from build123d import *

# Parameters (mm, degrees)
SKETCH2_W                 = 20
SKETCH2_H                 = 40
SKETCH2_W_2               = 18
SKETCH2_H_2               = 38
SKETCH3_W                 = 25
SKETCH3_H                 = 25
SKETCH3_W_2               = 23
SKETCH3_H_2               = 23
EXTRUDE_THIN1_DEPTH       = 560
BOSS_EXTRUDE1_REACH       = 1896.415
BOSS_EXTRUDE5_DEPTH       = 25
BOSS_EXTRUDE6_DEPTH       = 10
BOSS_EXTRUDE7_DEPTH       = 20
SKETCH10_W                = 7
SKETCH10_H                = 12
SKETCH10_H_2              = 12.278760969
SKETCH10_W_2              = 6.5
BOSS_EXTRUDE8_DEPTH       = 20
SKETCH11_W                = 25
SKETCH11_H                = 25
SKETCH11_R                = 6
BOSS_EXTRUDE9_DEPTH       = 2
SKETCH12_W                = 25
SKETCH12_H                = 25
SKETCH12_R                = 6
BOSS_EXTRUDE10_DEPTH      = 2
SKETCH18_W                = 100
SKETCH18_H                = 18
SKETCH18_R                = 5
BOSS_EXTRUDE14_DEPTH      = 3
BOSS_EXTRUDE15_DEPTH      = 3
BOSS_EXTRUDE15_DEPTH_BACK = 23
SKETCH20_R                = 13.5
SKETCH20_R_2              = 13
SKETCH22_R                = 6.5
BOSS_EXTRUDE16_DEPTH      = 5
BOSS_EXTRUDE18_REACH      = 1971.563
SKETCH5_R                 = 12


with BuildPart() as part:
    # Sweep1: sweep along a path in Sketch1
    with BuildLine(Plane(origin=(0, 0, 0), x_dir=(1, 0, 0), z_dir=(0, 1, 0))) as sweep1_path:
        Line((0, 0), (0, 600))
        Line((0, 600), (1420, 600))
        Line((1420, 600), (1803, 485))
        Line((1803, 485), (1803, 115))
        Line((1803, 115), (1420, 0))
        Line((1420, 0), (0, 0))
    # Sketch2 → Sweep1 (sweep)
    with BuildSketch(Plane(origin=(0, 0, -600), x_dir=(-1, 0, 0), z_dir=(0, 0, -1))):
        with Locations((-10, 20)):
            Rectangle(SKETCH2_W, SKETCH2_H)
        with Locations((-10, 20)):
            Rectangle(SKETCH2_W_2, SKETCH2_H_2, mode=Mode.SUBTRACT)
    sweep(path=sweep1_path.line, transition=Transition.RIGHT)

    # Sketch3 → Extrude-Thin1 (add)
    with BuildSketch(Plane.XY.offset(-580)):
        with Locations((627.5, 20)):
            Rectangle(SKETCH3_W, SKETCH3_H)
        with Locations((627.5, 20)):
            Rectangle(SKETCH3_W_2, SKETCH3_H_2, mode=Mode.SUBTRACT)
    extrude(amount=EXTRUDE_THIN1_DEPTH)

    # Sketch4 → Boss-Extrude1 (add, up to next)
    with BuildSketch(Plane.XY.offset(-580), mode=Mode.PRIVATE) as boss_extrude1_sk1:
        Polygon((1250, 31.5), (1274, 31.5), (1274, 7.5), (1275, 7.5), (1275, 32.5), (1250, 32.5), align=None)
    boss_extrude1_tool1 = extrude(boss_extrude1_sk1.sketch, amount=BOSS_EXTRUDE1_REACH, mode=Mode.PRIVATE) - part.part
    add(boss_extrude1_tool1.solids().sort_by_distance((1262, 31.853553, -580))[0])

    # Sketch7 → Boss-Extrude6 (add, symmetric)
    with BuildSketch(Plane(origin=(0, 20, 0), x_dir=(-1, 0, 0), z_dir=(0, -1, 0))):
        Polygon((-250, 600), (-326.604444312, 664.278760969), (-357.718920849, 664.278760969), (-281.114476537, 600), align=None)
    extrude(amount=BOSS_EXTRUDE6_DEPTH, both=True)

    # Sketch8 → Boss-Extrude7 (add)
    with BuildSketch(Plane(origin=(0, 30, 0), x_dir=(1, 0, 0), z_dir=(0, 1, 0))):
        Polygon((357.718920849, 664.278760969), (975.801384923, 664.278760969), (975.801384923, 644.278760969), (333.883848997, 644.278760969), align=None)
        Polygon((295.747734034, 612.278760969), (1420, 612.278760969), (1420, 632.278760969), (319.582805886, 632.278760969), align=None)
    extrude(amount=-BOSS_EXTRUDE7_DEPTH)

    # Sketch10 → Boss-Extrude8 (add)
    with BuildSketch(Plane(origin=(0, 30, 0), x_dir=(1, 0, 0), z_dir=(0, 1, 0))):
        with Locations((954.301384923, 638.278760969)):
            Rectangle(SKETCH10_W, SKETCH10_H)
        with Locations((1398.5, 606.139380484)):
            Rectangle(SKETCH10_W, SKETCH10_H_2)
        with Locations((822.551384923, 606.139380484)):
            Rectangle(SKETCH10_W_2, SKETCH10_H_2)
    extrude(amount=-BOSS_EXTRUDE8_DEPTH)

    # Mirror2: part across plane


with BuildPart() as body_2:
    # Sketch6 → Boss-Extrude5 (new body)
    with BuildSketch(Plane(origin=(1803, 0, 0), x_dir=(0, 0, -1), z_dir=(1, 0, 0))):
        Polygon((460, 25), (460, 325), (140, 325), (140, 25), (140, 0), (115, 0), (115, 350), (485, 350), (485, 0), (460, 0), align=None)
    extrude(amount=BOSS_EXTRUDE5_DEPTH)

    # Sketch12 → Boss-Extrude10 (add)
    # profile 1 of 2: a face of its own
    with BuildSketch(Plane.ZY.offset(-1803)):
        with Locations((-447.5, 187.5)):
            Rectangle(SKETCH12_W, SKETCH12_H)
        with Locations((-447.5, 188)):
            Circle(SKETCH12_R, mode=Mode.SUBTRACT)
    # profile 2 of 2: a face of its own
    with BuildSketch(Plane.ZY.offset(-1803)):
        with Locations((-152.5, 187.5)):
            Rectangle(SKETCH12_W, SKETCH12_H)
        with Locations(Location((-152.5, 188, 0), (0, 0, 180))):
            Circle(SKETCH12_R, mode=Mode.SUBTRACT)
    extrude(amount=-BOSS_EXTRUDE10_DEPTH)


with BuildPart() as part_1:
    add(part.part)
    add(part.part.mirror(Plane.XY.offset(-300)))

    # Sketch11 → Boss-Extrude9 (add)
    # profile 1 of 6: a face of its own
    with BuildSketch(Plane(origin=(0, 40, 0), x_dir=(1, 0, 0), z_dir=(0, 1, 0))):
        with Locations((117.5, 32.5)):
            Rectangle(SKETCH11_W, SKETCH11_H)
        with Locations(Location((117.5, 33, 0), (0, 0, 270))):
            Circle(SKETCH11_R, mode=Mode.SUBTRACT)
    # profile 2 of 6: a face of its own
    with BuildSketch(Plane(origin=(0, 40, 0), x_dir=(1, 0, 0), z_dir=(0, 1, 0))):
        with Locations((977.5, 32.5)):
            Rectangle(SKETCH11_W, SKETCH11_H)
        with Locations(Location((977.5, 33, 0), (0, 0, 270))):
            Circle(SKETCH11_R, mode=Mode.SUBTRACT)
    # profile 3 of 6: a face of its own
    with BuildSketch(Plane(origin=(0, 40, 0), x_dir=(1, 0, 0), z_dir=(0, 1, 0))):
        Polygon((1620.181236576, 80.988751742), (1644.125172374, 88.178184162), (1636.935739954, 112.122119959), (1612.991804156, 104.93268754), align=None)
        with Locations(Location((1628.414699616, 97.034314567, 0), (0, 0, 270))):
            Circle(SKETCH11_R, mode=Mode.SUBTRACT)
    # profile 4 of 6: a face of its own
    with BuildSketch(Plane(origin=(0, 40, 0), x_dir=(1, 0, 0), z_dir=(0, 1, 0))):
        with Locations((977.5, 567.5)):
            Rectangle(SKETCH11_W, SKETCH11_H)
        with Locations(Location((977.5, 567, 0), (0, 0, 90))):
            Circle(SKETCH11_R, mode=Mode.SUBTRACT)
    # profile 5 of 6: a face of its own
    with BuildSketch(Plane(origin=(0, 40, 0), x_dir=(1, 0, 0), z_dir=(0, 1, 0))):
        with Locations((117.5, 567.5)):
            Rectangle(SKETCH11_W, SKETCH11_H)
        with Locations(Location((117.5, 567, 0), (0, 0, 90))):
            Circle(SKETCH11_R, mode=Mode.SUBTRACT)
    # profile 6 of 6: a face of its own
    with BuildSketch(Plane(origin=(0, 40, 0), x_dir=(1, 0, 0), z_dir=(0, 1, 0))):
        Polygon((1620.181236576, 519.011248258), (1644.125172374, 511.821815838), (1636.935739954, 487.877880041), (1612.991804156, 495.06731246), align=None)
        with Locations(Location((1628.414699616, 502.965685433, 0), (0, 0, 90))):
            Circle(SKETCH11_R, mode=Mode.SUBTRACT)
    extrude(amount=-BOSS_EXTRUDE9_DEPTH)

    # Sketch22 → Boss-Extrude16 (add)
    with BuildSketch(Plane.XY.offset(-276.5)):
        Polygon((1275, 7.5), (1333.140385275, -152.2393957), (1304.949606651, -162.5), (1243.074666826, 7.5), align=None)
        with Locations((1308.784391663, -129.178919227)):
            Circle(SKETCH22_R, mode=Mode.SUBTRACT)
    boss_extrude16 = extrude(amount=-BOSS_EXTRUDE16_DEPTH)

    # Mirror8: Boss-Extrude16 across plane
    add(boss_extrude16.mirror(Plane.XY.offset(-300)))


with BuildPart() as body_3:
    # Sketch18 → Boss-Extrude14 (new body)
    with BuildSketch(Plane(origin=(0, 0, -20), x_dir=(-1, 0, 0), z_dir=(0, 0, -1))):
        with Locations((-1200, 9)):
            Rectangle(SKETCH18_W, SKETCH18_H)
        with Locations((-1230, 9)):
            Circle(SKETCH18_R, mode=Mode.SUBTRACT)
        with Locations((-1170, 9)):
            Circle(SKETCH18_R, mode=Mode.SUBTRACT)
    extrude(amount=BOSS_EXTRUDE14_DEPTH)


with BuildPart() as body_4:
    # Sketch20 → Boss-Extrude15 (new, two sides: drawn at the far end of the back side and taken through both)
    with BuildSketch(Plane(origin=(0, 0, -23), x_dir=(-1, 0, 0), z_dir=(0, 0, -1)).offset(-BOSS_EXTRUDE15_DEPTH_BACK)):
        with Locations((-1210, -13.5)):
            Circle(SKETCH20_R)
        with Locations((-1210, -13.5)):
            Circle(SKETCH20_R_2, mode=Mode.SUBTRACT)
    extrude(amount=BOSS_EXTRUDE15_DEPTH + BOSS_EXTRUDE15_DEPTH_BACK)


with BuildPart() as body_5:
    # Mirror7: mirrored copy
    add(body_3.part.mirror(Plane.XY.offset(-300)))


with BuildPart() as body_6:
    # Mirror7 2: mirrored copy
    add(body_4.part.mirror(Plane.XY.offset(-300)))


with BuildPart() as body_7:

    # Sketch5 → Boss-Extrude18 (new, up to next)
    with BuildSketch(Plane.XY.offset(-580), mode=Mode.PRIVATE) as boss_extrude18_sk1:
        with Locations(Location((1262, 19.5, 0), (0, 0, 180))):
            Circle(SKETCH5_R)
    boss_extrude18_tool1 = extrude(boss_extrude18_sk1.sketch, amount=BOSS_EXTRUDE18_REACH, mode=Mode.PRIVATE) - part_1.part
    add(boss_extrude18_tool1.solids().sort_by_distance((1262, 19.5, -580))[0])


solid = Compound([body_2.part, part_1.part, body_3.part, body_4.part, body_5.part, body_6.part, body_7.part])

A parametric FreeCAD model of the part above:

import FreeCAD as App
import Part
import Sketcher

V = App.Vector
Q = App.Units.Quantity

doc = App.newDocument("Part")
body = doc.addObject("PartDesign::Body", "Body")

# Sketch on XY plane
sketch1 = body.newObject("Sketcher::SketchObject", "Sketch")
sketch1.AttachmentSupport = (doc.getObject("XY_Plane"), [""])
sketch1.MapMode = "FlatFace"
sketch1.AttachmentOffset = App.Placement(V(0, 0, -600), App.Rotation())
sketch1.addGeometry([
    Part.LineSegment(V(20, 40, 0), V(20, 0, 0)),  # 0
    Part.LineSegment(V(20, 0, 0), V(0, 0, 0)),  # 1
    Part.LineSegment(V(0, 0, 0), V(0, 40, 0)),  # 2
    Part.LineSegment(V(0, 40, 0), V(20, 40, 0)),  # 3
    Part.LineSegment(V(1, 1, 0), V(19, 1, 0)),  # 4
    Part.LineSegment(V(19, 1, 0), V(19, 39, 0)),  # 5
    Part.LineSegment(V(19, 39, 0), V(1, 39, 0)),  # 6
    Part.LineSegment(V(1, 39, 0), V(1, 1, 0)),  # 7
], False)
sketch1.addConstraint([
    Sketcher.Constraint("Coincident", 0, 2, 1, 1),
    Sketcher.Constraint("Coincident", 1, 2, 2, 1),
    Sketcher.Constraint("Coincident", 2, 2, 3, 1),
    Sketcher.Constraint("Coincident", 3, 2, 0, 1),
    Sketcher.Constraint("Coincident", 4, 2, 5, 1),
    Sketcher.Constraint("Coincident", 5, 2, 6, 1),
    Sketcher.Constraint("Coincident", 6, 2, 7, 1),
    Sketcher.Constraint("Coincident", 7, 2, 4, 1),
    Sketcher.Constraint("Vertical", 0),
    Sketcher.Constraint("Horizontal", 1),
    Sketcher.Constraint("Vertical", 2),
    Sketcher.Constraint("Horizontal", 3),
    Sketcher.Constraint("Horizontal", 4),
    Sketcher.Constraint("Vertical", 5),
    Sketcher.Constraint("Horizontal", 6),
    Sketcher.Constraint("Vertical", 7),
    Sketcher.Constraint("Coincident", 1, 2, -1, 1),
    Sketcher.Constraint("DistanceX", 1, 2, 1, 1, Q("20 mm")),
    Sketcher.Constraint("DistanceX", 4, 1, 4, 2, Q("18 mm")),
    Sketcher.Constraint("DistanceY", 0, 2, 0, 1, Q("40 mm")),
    Sketcher.Constraint("DistanceY", 5, 1, 5, 2, Q("38 mm")),
    Sketcher.Constraint("DistanceX", -1, 1, 4, 2, Q("19 mm")),
    Sketcher.Constraint("DistanceY", -1, 1, 4, 2, Q("1 mm")),
])

# Sketch on XZ plane
sketch2 = body.newObject("Sketcher::SketchObject", "Sketch001")
sketch2.AttachmentSupport = (doc.getObject("XZ_Plane"), [""])
sketch2.MapMode = "FlatFace"
sketch2.addGeometry([
    Part.LineSegment(V(0, 0, 0), V(0, -600, 0)),  # 0
    Part.LineSegment(V(0, -600, 0), V(1420, -600, 0)),  # 1
    Part.LineSegment(V(1420, -600, 0), V(1803, -485, 0)),  # 2
    Part.LineSegment(V(1803, -485, 0), V(1803, -115, 0)),  # 3
    Part.LineSegment(V(1803, -115, 0), V(1420, 0, 0)),  # 4
    Part.LineSegment(V(1420, 0, 0), V(0, 0, 0)),  # 5
], False)
sketch2.addConstraint([
    Sketcher.Constraint("Coincident", 0, 2, 1, 1),
    Sketcher.Constraint("Coincident", 1, 2, 2, 1),
    Sketcher.Constraint("Coincident", 2, 2, 3, 1),
    Sketcher.Constraint("Coincident", 3, 2, 4, 1),
    Sketcher.Constraint("Coincident", 4, 2, 5, 1),
    Sketcher.Constraint("Coincident", 5, 2, 0, 1),
    Sketcher.Constraint("Vertical", 0),
    Sketcher.Constraint("Horizontal", 1),
    Sketcher.Constraint("Vertical", 3),
    Sketcher.Constraint("Horizontal", 5),
    Sketcher.Constraint("Coincident", 5, 2, -1, 1),
    Sketcher.Constraint("Vertical", 1, 2, 4, 2),
    Sketcher.Constraint("Equal", 2, 4),
    Sketcher.Constraint("DistanceX", 1, 1, 1, 2, Q("1420 mm")),
    Sketcher.Constraint("DistanceY", 0, 2, 0, 1, Q("600 mm")),
    Sketcher.Constraint("DistanceY", 3, 1, 3, 2, Q("370 mm")),
    Sketcher.Constraint("DistanceX", -1, 1, 2, 2, Q("1803 mm")),
])
doc.recompute()

additivepipe = body.newObject("PartDesign::AdditivePipe", "AdditivePipe")
additivepipe.Profile = sketch1
additivepipe.Spine = (sketch2, ["Edge1", "Edge2", "Edge3", "Edge4", "Edge5", "Edge6"])
additivepipe.Transition = "Right corner"

# Sketch on XY plane
sketch3 = body.newObject("Sketcher::SketchObject", "Sketch002")
sketch3.AttachmentSupport = (doc.getObject("XY_Plane"), [""])
sketch3.MapMode = "FlatFace"
sketch3.AttachmentOffset = App.Placement(V(0, 0, -580), App.Rotation())
sketch3.addGeometry([
    Part.LineSegment(V(615, 32, 0), V(615, 8, 0)),  # 0
    Part.LineSegment(V(615, 8, 0), V(640, 8, 0)),  # 1
    Part.LineSegment(V(640, 8, 0), V(640, 32, 0)),  # 2
    Part.LineSegment(V(640, 32, 0), V(615, 32, 0)),  # 3
    Part.LineSegment(V(639, 8, 0), V(616, 8, 0)),  # 4
    Part.LineSegment(V(616, 8, 0), V(616, 32, 0)),  # 5
    Part.LineSegment(V(616, 32, 0), V(639, 32, 0)),  # 6
    Part.LineSegment(V(639, 32, 0), V(639, 8, 0)),  # 7
], False)
sketch3.addConstraint([
    Sketcher.Constraint("Coincident", 0, 2, 1, 1),
    Sketcher.Constraint("Coincident", 1, 2, 2, 1),
    Sketcher.Constraint("Coincident", 2, 2, 3, 1),
    Sketcher.Constraint("Coincident", 3, 2, 0, 1),
    Sketcher.Constraint("Coincident", 4, 2, 5, 1),
    Sketcher.Constraint("Coincident", 5, 2, 6, 1),
    Sketcher.Constraint("Coincident", 6, 2, 7, 1),
    Sketcher.Constraint("Coincident", 7, 2, 4, 1),
    Sketcher.Constraint("Vertical", 0),
    Sketcher.Constraint("Horizontal", 1),
    Sketcher.Constraint("Vertical", 2),
    Sketcher.Constraint("Horizontal", 3),
    Sketcher.Constraint("Horizontal", 4),
    Sketcher.Constraint("Vertical", 5),
    Sketcher.Constraint("Horizontal", 6),
    Sketcher.Constraint("Vertical", 7),
    Sketcher.Constraint("Equal", 3, 0),
    Sketcher.Constraint("Equal", 6, 5),
    Sketcher.Constraint("DistanceX", 1, 1, 1, 2, Q("25 mm")),
    Sketcher.Constraint("DistanceX", 4, 2, 4, 1, Q("23 mm")),
    Sketcher.Constraint("DistanceX", -1, 1, 0, 2, Q("615 mm")),
    Sketcher.Constraint("DistanceX", -1, 1, 4, 2, Q("616 mm")),
    Sketcher.Constraint("DistanceY", 0, 2, 4, 2, Q("1 mm")),
    Sketcher.Constraint("DistanceY", -1, 1, 0, 2, Q("7.5 mm")),
])
pad1 = body.newObject("PartDesign::Pad", "Pad")
pad1.Profile = sketch3
pad1.Length = 560

# Sketch on XY plane
sketch4 = body.newObject("Sketcher::SketchObject", "Sketch003")
sketch4.AttachmentSupport = (doc.getObject("XY_Plane"), [""])
sketch4.MapMode = "FlatFace"
sketch4.AttachmentOffset = App.Placement(V(0, 0, -580), App.Rotation())
sketch4.addGeometry([
    Part.LineSegment(V(1250, 31.5, 0), V(1274, 31.5, 0)),  # 0
    Part.LineSegment(V(1274, 31.5, 0), V(1274, 7.5, 0)),  # 1
    Part.LineSegment(V(1274, 7.5, 0), V(1275, 7.5, 0)),  # 2
    Part.LineSegment(V(1275, 7.5, 0), V(1275, 32.5, 0)),  # 3
    Part.LineSegment(V(1275, 32.5, 0), V(1250, 32.5, 0)),  # 4
    Part.LineSegment(V(1250, 32.5, 0), V(1250, 31.5, 0)),  # 5
], False)
sketch4.addConstraint([
    Sketcher.Constraint("Coincident", 0, 2, 1, 1),
    Sketcher.Constraint("Coincident", 1, 2, 2, 1),
    Sketcher.Constraint("Coincident", 2, 2, 3, 1),
    Sketcher.Constraint("Coincident", 3, 2, 4, 1),
    Sketcher.Constraint("Coincident", 4, 2, 5, 1),
    Sketcher.Constraint("Coincident", 5, 2, 0, 1),
    Sketcher.Constraint("Horizontal", 0),
    Sketcher.Constraint("Vertical", 1),
    Sketcher.Constraint("Horizontal", 2),
    Sketcher.Constraint("Vertical", 3),
    Sketcher.Constraint("Horizontal", 4),
    Sketcher.Constraint("Vertical", 5),
    Sketcher.Constraint("Equal", 0, 1),
    Sketcher.Constraint("Equal", 4, 3),
    Sketcher.Constraint("DistanceX", 0, 1, 0, 2, Q("24 mm")),
    Sketcher.Constraint("DistanceX", 2, 1, 2, 2, Q("1 mm")),
    Sketcher.Constraint("DistanceX", -1, 1, 0, 2, Q("1274 mm")),
    Sketcher.Constraint("DistanceY", -1, 1, 0, 2, Q("31.5 mm")),
])
pad2 = body.newObject("PartDesign::Pad", "Pad001")
pad2.Profile = sketch4
pad2.Type = "UpToFirst"

# Sketch on XZ plane
sketch5 = body.newObject("Sketcher::SketchObject", "Sketch004")
sketch5.AttachmentSupport = (doc.getObject("XZ_Plane"), [""])
sketch5.MapMode = "FlatFace"
sketch5.AttachmentOffset = App.Placement(V(0, 0, -20), App.Rotation())
sketch5.addGeometry([
    Part.LineSegment(V(250, -600, 0), V(327, -664, 0)),
    Part.LineSegment(V(327, -664, 0), V(358, -664, 0)),
    Part.LineSegment(V(358, -664, 0), V(281, -600, 0)),
    Part.LineSegment(V(281, -600, 0), V(250, -600, 0)),
], False)
sketch5.addConstraint([
    Sketcher.Constraint("Coincident", 0, 2, 1, 1),
    Sketcher.Constraint("Coincident", 1, 2, 2, 1),
    Sketcher.Constraint("Coincident", 2, 2, 3, 1),
    Sketcher.Constraint("Coincident", 3, 2, 0, 1),
    Sketcher.Constraint("Horizontal", 1),
    Sketcher.Constraint("Horizontal", 3),
    Sketcher.Constraint("Parallel", 0, 2),
    Sketcher.Constraint("Angle", 0, Q("-40 deg")),
    Sketcher.Constraint("Distance", 0, Q("100 mm")),
    Sketcher.Constraint("DistanceY", 2, 2, -1, 1, Q("600 mm")),
    Sketcher.Constraint("DistanceX", -1, 1, 3, 2, Q("250 mm")),
    Sketcher.Constraint("DistanceX", 1, 1, 1, 2, Q("31.114477 mm")),
])
pad3 = body.newObject("PartDesign::Pad", "Pad002")
pad3.Profile = sketch5
pad3.Length = 20
pad3.Midplane = True

# Sketch on XZ plane
sketch6 = body.newObject("Sketcher::SketchObject", "Sketch005")
sketch6.AttachmentSupport = (doc.getObject("XZ_Plane"), [""])
sketch6.MapMode = "FlatFace"
sketch6.AttachmentOffset = App.Placement(V(0, 0, -30), App.Rotation())
sketch6.addGeometry([
    Part.LineSegment(V(976, -664, 0), V(358, -664, 0)),  # 0
    Part.LineSegment(V(358, -664, 0), V(334, -644, 0)),  # 1
    Part.LineSegment(V(334, -644, 0), V(976, -644, 0)),  # 2
    Part.LineSegment(V(976, -644, 0), V(976, -664, 0)),  # 3
    Part.LineSegment(V(296, -612, 0), V(1420, -612, 0)),  # 4
    Part.LineSegment(V(1420, -612, 0), V(1420, -632, 0)),  # 5
    Part.LineSegment(V(1420, -632, 0), V(320, -632, 0)),  # 6
    Part.LineSegment(V(320, -632, 0), V(296, -612, 0)),  # 7
], False)
sketch6.addConstraint([
    Sketcher.Constraint("Coincident", 0, 2, 1, 1),
    Sketcher.Constraint("Coincident", 1, 2, 2, 1),
    Sketcher.Constraint("Coincident", 2, 2, 3, 1),
    Sketcher.Constraint("Coincident", 3, 2, 0, 1),
    Sketcher.Constraint("Coincident", 4, 2, 5, 1),
    Sketcher.Constraint("Coincident", 5, 2, 6, 1),
    Sketcher.Constraint("Coincident", 6, 2, 7, 1),
    Sketcher.Constraint("Coincident", 7, 2, 4, 1),
    Sketcher.Constraint("Horizontal", 0),
    Sketcher.Constraint("Horizontal", 2),
    Sketcher.Constraint("Vertical", 3),
    Sketcher.Constraint("Horizontal", 4),
    Sketcher.Constraint("Vertical", 5),
    Sketcher.Constraint("Horizontal", 6),
    Sketcher.Constraint("Parallel", 1, 7),
    Sketcher.Constraint("Equal", 3, 5),
    Sketcher.Constraint("DistanceY", 3, 2, 3, 1, Q("20 mm")),
    Sketcher.Constraint("Angle", 1, Q("140 deg")),
    Sketcher.Constraint("DistanceX", -1, 1, 4, 2, Q("1420 mm")),
    Sketcher.Constraint("DistanceY", 2, 2, 4, 2, Q("32 mm")),
    Sketcher.Constraint("DistanceX", 0, 2, 0, 1, Q("618.082464 mm")),
    Sketcher.Constraint("DistanceX", 4, 1, 4, 2, Q("1124.252266 mm")),
    Sketcher.Constraint("DistanceX", -1, 1, 0, 2, Q("357.718921 mm")),
    Sketcher.Constraint("DistanceY", 0, 2, -1, 1, Q("664.278761 mm")),
])
pad4 = body.newObject("PartDesign::Pad", "Pad003")
pad4.Profile = sketch6
pad4.Length = 20

# Sketch on XZ plane
sketch7 = body.newObject("Sketcher::SketchObject", "Sketch006")
sketch7.AttachmentSupport = (doc.getObject("XZ_Plane"), [""])
sketch7.MapMode = "FlatFace"
sketch7.AttachmentOffset = App.Placement(V(0, 0, -30), App.Rotation())
sketch7.addGeometry([
    Part.LineSegment(V(951, -644, 0), V(951, -632, 0)),  # 0
    Part.LineSegment(V(951, -632, 0), V(958, -632, 0)),  # 1
    Part.LineSegment(V(958, -632, 0), V(958, -644, 0)),  # 2
    Part.LineSegment(V(958, -644, 0), V(951, -644, 0)),  # 3
    Part.LineSegment(V(1395, -612, 0), V(1395, -600, 0)),  # 4
    Part.LineSegment(V(1395, -600, 0), V(1402, -600, 0)),  # 5
    Part.LineSegment(V(1402, -600, 0), V(1402, -612, 0)),  # 6
    Part.LineSegment(V(1402, -612, 0), V(1395, -612, 0)),  # 7
    Part.LineSegment(V(819, -612, 0), V(819, -600, 0)),  # 8
    Part.LineSegment(V(819, -600, 0), V(826, -600, 0)),  # 9
    Part.LineSegment(V(826, -600, 0), V(826, -612, 0)),  # 10
    Part.LineSegment(V(826, -612, 0), V(819, -612, 0)),  # 11
], False)
sketch7.addConstraint([
    Sketcher.Constraint("Coincident", 0, 2, 1, 1),
    Sketcher.Constraint("Coincident", 1, 2, 2, 1),
    Sketcher.Constraint("Coincident", 2, 2, 3, 1),
    Sketcher.Constraint("Coincident", 3, 2, 0, 1),
    Sketcher.Constraint("Coincident", 4, 2, 5, 1),
    Sketcher.Constraint("Coincident", 5, 2, 6, 1),
    Sketcher.Constraint("Coincident", 6, 2, 7, 1),
    Sketcher.Constraint("Coincident", 7, 2, 4, 1),
    Sketcher.Constraint("Coincident", 8, 2, 9, 1),
    Sketcher.Constraint("Coincident", 9, 2, 10, 1),
    Sketcher.Constraint("Coincident", 10, 2, 11, 1),
    Sketcher.Constraint("Coincident", 11, 2, 8, 1),
    Sketcher.Constraint("Vertical", 0),
    Sketcher.Constraint("Horizontal", 1),
    Sketcher.Constraint("Vertical", 2),
    Sketcher.Constraint("Horizontal", 3),
    Sketcher.Constraint("Vertical", 4),
    Sketcher.Constraint("Horizontal", 5),
    Sketcher.Constraint("Vertical", 6),
    Sketcher.Constraint("Horizontal", 7),
    Sketcher.Constraint("Vertical", 8),
    Sketcher.Constraint("Horizontal", 9),
    Sketcher.Constraint("Vertical", 10),
    Sketcher.Constraint("Horizontal", 11),
    Sketcher.Constraint("Horizontal", 5, 2, 8, 2),
    Sketcher.Constraint("Horizontal", 7, 2, 10, 2),
    Sketcher.Constraint("Equal", 3, 5),
    Sketcher.Constraint("DistanceX", 1, 1, 1, 2, Q("7 mm")),
    Sketcher.Constraint("DistanceY", 0, 1, 0, 2, Q("12 mm")),
    Sketcher.Constraint("DistanceX", 9, 1, 9, 2, Q("6.5 mm")),
    Sketcher.Constraint("DistanceX", -1, 1, 4, 2, Q("1395 mm")),
    Sketcher.Constraint("DistanceY", 4, 2, -1, 1, Q("600 mm")),
    Sketcher.Constraint("DistanceY", 1, 2, 6, 2, Q("20 mm")),
    Sketcher.Constraint("DistanceX", 9, 2, 0, 2, Q("125 mm")),
    Sketcher.Constraint("DistanceY", 4, 1, 4, 2, Q("12.278761 mm")),
    Sketcher.Constraint("DistanceX", -1, 1, 0, 2, Q("950.801385 mm")),
])
pad5 = body.newObject("PartDesign::Pad", "Pad004")
pad5.Profile = sketch7
pad5.Length = 20
body2 = doc.addObject("PartDesign::Body", "Body001")

# Sketch on YZ plane
sketch8 = body2.newObject("Sketcher::SketchObject", "Sketch007")
sketch8.AttachmentSupport = (doc.getObject("YZ_Plane001"), [""])
sketch8.MapMode = "FlatFace"
sketch8.AttachmentOffset = App.Placement(V(0, 0, 1803), App.Rotation())
sketch8.addGeometry([
    Part.LineSegment(V(325, -460, 0), V(0, -460, 0)),  # 0
    Part.LineSegment(V(0, -460, 0), V(0, -485, 0)),  # 1
    Part.LineSegment(V(0, -485, 0), V(350, -485, 0)),  # 2
    Part.LineSegment(V(350, -485, 0), V(350, -115, 0)),  # 3
    Part.LineSegment(V(350, -115, 0), V(0, -115, 0)),  # 4
    Part.LineSegment(V(0, -115, 0), V(0, -140, 0)),  # 5
    Part.LineSegment(V(0, -140, 0), V(325, -140, 0)),  # 6
    Part.LineSegment(V(325, -140, 0), V(325, -460, 0)),  # 7
], False)
sketch8.addConstraint([
    Sketcher.Constraint("Coincident", 0, 2, 1, 1),
    Sketcher.Constraint("Coincident", 1, 2, 2, 1),
    Sketcher.Constraint("Coincident", 2, 2, 3, 1),
    Sketcher.Constraint("Coincident", 3, 2, 4, 1),
    Sketcher.Constraint("Coincident", 4, 2, 5, 1),
    Sketcher.Constraint("Coincident", 5, 2, 6, 1),
    Sketcher.Constraint("Coincident", 6, 2, 7, 1),
    Sketcher.Constraint("Coincident", 7, 2, 0, 1),
    Sketcher.Constraint("Horizontal", 0),
    Sketcher.Constraint("Vertical", 1),
    Sketcher.Constraint("Horizontal", 2),
    Sketcher.Constraint("Vertical", 3),
    Sketcher.Constraint("Horizontal", 4),
    Sketcher.Constraint("Vertical", 5),
    Sketcher.Constraint("Horizontal", 6),
    Sketcher.Constraint("Vertical", 7),
    Sketcher.Constraint("PointOnObject", 0, 2, -2),
    Sketcher.Constraint("PointOnObject", 4, 2, -2),
    Sketcher.Constraint("Equal", 1, 5),
    Sketcher.Constraint("DistanceX", 0, 2, 0, 1, Q("325 mm")),
    Sketcher.Constraint("DistanceX", 2, 1, 2, 2, Q("350 mm")),
    Sketcher.Constraint("DistanceY", 1, 2, 1, 1, Q("25 mm")),
    Sketcher.Constraint("DistanceY", 3, 1, 3, 2, Q("370 mm")),
    Sketcher.Constraint("DistanceY", 0, 2, -1, 1, Q("460 mm")),
])
pad6 = body2.newObject("PartDesign::Pad", "Pad005")
pad6.Profile = sketch8
pad6.Length = 25

# Sketch on YZ plane
sketch9 = body2.newObject("Sketcher::SketchObject", "Sketch008")
sketch9.AttachmentSupport = (doc.getObject("YZ_Plane001"), [""])
sketch9.MapMode = "FlatFace"
sketch9.AttachmentOffset = App.Placement(V(0, 0, 1803), App.Rotation())
sketch9.addGeometry([
    Part.LineSegment(V(200, -460, 0), V(175, -460, 0)),  # 0
    Part.LineSegment(V(175, -460, 0), V(175, -435, 0)),  # 1
    Part.LineSegment(V(175, -435, 0), V(200, -435, 0)),  # 2
    Part.LineSegment(V(200, -435, 0), V(200, -460, 0)),  # 3
    Part.Circle(V(188, -448, 0), V(0, 0, 1), 6),  # 4
    Part.LineSegment(V(200, -165, 0), V(175, -165, 0)),  # 5
    Part.LineSegment(V(175, -165, 0), V(175, -140, 0)),  # 6
    Part.LineSegment(V(175, -140, 0), V(200, -140, 0)),  # 7
    Part.LineSegment(V(200, -140, 0), V(200, -165, 0)),  # 8
    Part.Circle(V(188, -152, 0), V(0, 0, 1), 6),  # 9
], False)
sketch9.addConstraint([
    Sketcher.Constraint("Coincident", 0, 2, 1, 1),
    Sketcher.Constraint("Coincident", 1, 2, 2, 1),
    Sketcher.Constraint("Coincident", 2, 2, 3, 1),
    Sketcher.Constraint("Coincident", 3, 2, 0, 1),
    Sketcher.Constraint("Coincident", 5, 2, 6, 1),
    Sketcher.Constraint("Coincident", 6, 2, 7, 1),
    Sketcher.Constraint("Coincident", 7, 2, 8, 1),
    Sketcher.Constraint("Coincident", 8, 2, 5, 1),
    Sketcher.Constraint("Horizontal", 0),
    Sketcher.Constraint("Vertical", 1),
    Sketcher.Constraint("Horizontal", 2),
    Sketcher.Constraint("Vertical", 3),
    Sketcher.Constraint("Horizontal", 5),
    Sketcher.Constraint("Vertical", 6),
    Sketcher.Constraint("Horizontal", 7),
    Sketcher.Constraint("Vertical", 8),
    Sketcher.Constraint("Equal", 4, 9),
    Sketcher.Constraint("Vertical", 4, 3, 9, 3),
    Sketcher.Constraint("Vertical", 1, 2, 5, 2),
    Sketcher.Constraint("Vertical", 3, 2, 7, 2),
    Sketcher.Constraint("Equal", 7, 1),
    Sketcher.Constraint("Equal", 3, 6),
    Sketcher.Constraint("Diameter", 4, Q("12 mm")),
    Sketcher.Constraint("DistanceX", 0, 2, 0, 1, Q("25 mm")),
    Sketcher.Constraint("DistanceX", -1, 1, 4, 3, Q("188 mm")),
    Sketcher.Constraint("DistanceX", -1, 1, 0, 2, Q("175 mm")),
    Sketcher.Constraint("DistanceY", 0, 2, -1, 1, Q("460 mm")),
    Sketcher.Constraint("DistanceY", 5, 2, -1, 1, Q("165 mm")),
    Sketcher.Constraint("DistanceY", 4, 3, 9, 3, Q("295 mm")),
    Sketcher.Constraint("DistanceY", 4, 3, -1, 1, Q("447.5 mm")),
])
pad7 = body2.newObject("PartDesign::Pad", "Pad006")
pad7.Profile = sketch9
pad7.Length = 2
body3 = doc.addObject("PartDesign::Body", "Body002")
doc.recompute()

body3.BaseFeature = body
doc.recompute()

mirroring = doc.addObject("Part::Mirroring", "Mirroring")
mirroring.Source = body
mirroring.Base = V(0, 0, -300)
mirroring.Normal = V(0, 0, 1)
body4 = doc.addObject("PartDesign::Body", "Body003")
body4.BaseFeature = mirroring
boolean = body3.newObject("PartDesign::Boolean", "Boolean")
boolean.Type = "Fuse"
boolean.addObjects([body4])
doc.recompute()

# Sketch on XZ plane
sketch10 = body3.newObject("Sketcher::SketchObject", "Sketch009")
sketch10.AttachmentSupport = (doc.getObject("XZ_Plane002"), [""])
sketch10.MapMode = "FlatFace"
sketch10.AttachmentOffset = App.Placement(V(0, 0, -40), App.Rotation())
sketch10.addGeometry([
    Part.LineSegment(V(105, -45, 0), V(105, -20, 0)),  # 0
    Part.LineSegment(V(105, -20, 0), V(130, -20, 0)),  # 1
    Part.LineSegment(V(130, -20, 0), V(130, -45, 0)),  # 2
    Part.LineSegment(V(130, -45, 0), V(105, -45, 0)),  # 3
    Part.Circle(V(118, -33, 0), V(0, 0, 1), 6),  # 4
    Part.LineSegment(V(965, -45, 0), V(965, -20, 0)),  # 5
    Part.LineSegment(V(965, -20, 0), V(990, -20, 0)),  # 6
    Part.LineSegment(V(990, -20, 0), V(990, -45, 0)),  # 7
    Part.LineSegment(V(990, -45, 0), V(965, -45, 0)),  # 8
    Part.Circle(V(978, -33, 0), V(0, 0, 1), 6),  # 9
    Part.LineSegment(V(1620, -81, 0), V(1644, -88, 0)),  # 10
    Part.LineSegment(V(1644, -88, 0), V(1637, -112, 0)),  # 11
    Part.LineSegment(V(1637, -112, 0), V(1613, -105, 0)),  # 12
    Part.LineSegment(V(1613, -105, 0), V(1620, -81, 0)),  # 13
    Part.Circle(V(1628, -97, 0), V(0, 0, 1), 6),  # 14
    Part.LineSegment(V(965, -580, 0), V(965, -555, 0)),  # 15
    Part.LineSegment(V(965, -555, 0), V(990, -555, 0)),  # 16
    Part.LineSegment(V(990, -555, 0), V(990, -580, 0)),  # 17
    Part.LineSegment(V(990, -580, 0), V(965, -580, 0)),  # 18
    Part.Circle(V(978, -567, 0), V(0, 0, 1), 6),  # 19
    Part.LineSegment(V(105, -580, 0), V(105, -555, 0)),  # 20
    Part.LineSegment(V(105, -555, 0), V(130, -555, 0)),  # 21
    Part.LineSegment(V(130, -555, 0), V(130, -580, 0)),  # 22
    Part.LineSegment(V(130, -580, 0), V(105, -580, 0)),  # 23
    Part.Circle(V(118, -567, 0), V(0, 0, 1), 6),  # 24
    Part.LineSegment(V(1644, -512, 0), V(1620, -519, 0)),  # 25
    Part.LineSegment(V(1620, -519, 0), V(1613, -495, 0)),  # 26
    Part.LineSegment(V(1613, -495, 0), V(1637, -488, 0)),  # 27
    Part.LineSegment(V(1637, -488, 0), V(1644, -512, 0)),  # 28
    Part.Circle(V(1628, -503, 0), V(0, 0, 1), 6),  # 29
], False)
sketch10.addConstraint([
    Sketcher.Constraint("Coincident", 0, 2, 1, 1),
    Sketcher.Constraint("Coincident", 1, 2, 2, 1),
    Sketcher.Constraint("Coincident", 2, 2, 3, 1),
    Sketcher.Constraint("Coincident", 3, 2, 0, 1),
    Sketcher.Constraint("Coincident", 5, 2, 6, 1),
    Sketcher.Constraint("Coincident", 6, 2, 7, 1),
    Sketcher.Constraint("Coincident", 7, 2, 8, 1),
    Sketcher.Constraint("Coincident", 8, 2, 5, 1),
    Sketcher.Constraint("Coincident", 10, 2, 11, 1),
    Sketcher.Constraint("Coincident", 11, 2, 12, 1),
    Sketcher.Constraint("Coincident", 12, 2, 13, 1),
    Sketcher.Constraint("Coincident", 13, 2, 10, 1),
    Sketcher.Constraint("Coincident", 15, 2, 16, 1),
    Sketcher.Constraint("Coincident", 16, 2, 17, 1),
    Sketcher.Constraint("Coincident", 17, 2, 18, 1),
    Sketcher.Constraint("Coincident", 18, 2, 15, 1),
    Sketcher.Constraint("Coincident", 20, 2, 21, 1),
    Sketcher.Constraint("Coincident", 21, 2, 22, 1),
    Sketcher.Constraint("Coincident", 22, 2, 23, 1),
    Sketcher.Constraint("Coincident", 23, 2, 20, 1),
    Sketcher.Constraint("Coincident", 25, 2, 26, 1),
    Sketcher.Constraint("Coincident", 26, 2, 27, 1),
    Sketcher.Constraint("Coincident", 27, 2, 28, 1),
    Sketcher.Constraint("Coincident", 28, 2, 25, 1),
    Sketcher.Constraint("Vertical", 0),
    Sketcher.Constraint("Horizontal", 1),
    Sketcher.Constraint("Vertical", 2),
    Sketcher.Constraint("Horizontal", 3),
    Sketcher.Constraint("Vertical", 5),
    Sketcher.Constraint("Horizontal", 6),
    Sketcher.Constraint("Vertical", 7),
    Sketcher.Constraint("Horizontal", 8),
    Sketcher.Constraint("Vertical", 15),
    Sketcher.Constraint("Horizontal", 16),
    Sketcher.Constraint("Vertical", 17),
    Sketcher.Constraint("Horizontal", 18),
    Sketcher.Constraint("Vertical", 20),
    Sketcher.Constraint("Horizontal", 21),
    Sketcher.Constraint("Vertical", 22),
    Sketcher.Constraint("Horizontal", 23),
    Sketcher.Constraint("Equal", 4, 9),
    Sketcher.Constraint("Equal", 9, 14),
    Sketcher.Constraint("Equal", 14, 19),
    Sketcher.Constraint("Equal", 19, 24),
    Sketcher.Constraint("Equal", 24, 29),
    Sketcher.Constraint("Perpendicular", 10, 11),
    Sketcher.Constraint("Perpendicular", 11, 12),
    Sketcher.Constraint("Perpendicular", 12, 13),
    Sketcher.Constraint("Perpendicular", 25, 26),
    Sketcher.Constraint("Perpendicular", 26, 27),
    Sketcher.Constraint("Perpendicular", 27, 28),
    Sketcher.Constraint("Horizontal", 4, 3, 9, 3),
    Sketcher.Constraint("Horizontal", 19, 3, 24, 3),
    Sketcher.Constraint("Horizontal", 1, 2, 5, 2),
    Sketcher.Constraint("Horizontal", 3, 2, 7, 2),
    Sketcher.Constraint("Horizontal", 16, 2, 20, 2),
    Sketcher.Constraint("Horizontal", 18, 2, 22, 2),
    Sketcher.Constraint("Vertical", 9, 3, 19, 3),
    Sketcher.Constraint("Vertical", 4, 3, 24, 3),
    Sketcher.Constraint("Vertical", 14, 3, 29, 3),
    Sketcher.Constraint("Vertical", 8, 2, 15, 2),
    Sketcher.Constraint("Vertical", 7, 2, 16, 2),
    Sketcher.Constraint("Vertical", 3, 2, 20, 2),
    Sketcher.Constraint("Vertical", 2, 2, 21, 2),
    Sketcher.Constraint("Vertical", 13, 2, 25, 2),
    Sketcher.Constraint("Vertical", 12, 2, 26, 2),
    Sketcher.Constraint("Vertical", 11, 2, 27, 2),
    Sketcher.Constraint("Equal", 3, 6),
    Sketcher.Constraint("Equal", 23, 0),
    Sketcher.Constraint("Equal", 7, 15),
    Sketcher.Constraint("Equal", 10, 11),
    Sketcher.Constraint("Equal", 13, 25),
    Sketcher.Constraint("Diameter", 4, Q("12 mm")),
    Sketcher.Constraint("DistanceX", 1, 1, 1, 2, Q("25 mm")),
    Sketcher.Constraint("Distance", 10, Q("25 mm")),
    Sketcher.Constraint("DistanceY", 4, 3, -1, 1, Q("33 mm")),
    Sketcher.Constraint("DistanceY", 19, 3, -1, 1, Q("567 mm")),
    Sketcher.Constraint("DistanceX", -1, 1, 0, 2, Q("105 mm")),
    Sketcher.Constraint("DistanceY", 0, 2, -1, 1, Q("20 mm")),
    Sketcher.Constraint("DistanceX", -1, 1, 5, 2, Q("965 mm")),
    Sketcher.Constraint("DistanceY", 15, 2, -1, 1, Q("555 mm")),
    Sketcher.Constraint("DistanceX", 4, 3, 9, 3, Q("860 mm")),
    Sketcher.Constraint("DistanceX", -1, 1, 4, 3, Q("117.5 mm")),
    Sketcher.Constraint("DistanceX", -1, 1, 14, 3, Q("1628.4147 mm")),
    Sketcher.Constraint("DistanceY", 29, 3, 10, 2, Q("414.787501 mm")),
    Sketcher.Constraint("DistanceX", -1, 1, 11, 2, Q("1636.93574 mm")),
    Sketcher.Constraint("DistanceY", 11, 2, -1, 1, Q("112.12212 mm")),
    Sketcher.Constraint("DistanceY", 13, 2, -1, 1, Q("80.988752 mm")),
    Sketcher.Constraint("DistanceY", 25, 2, -1, 1, Q("519.011248 mm")),
    Sketcher.Constraint("DistanceY", 29, 3, 14, 3, Q("405.931371 mm")),
])
pad8 = body3.newObject("PartDesign::Pad", "Pad007")
pad8.Profile = sketch10
pad8.Length = 2

# Sketch on XY plane
sketch11 = body3.newObject("Sketcher::SketchObject", "Sketch010")
sketch11.AttachmentSupport = (doc.getObject("XY_Plane002"), [""])
sketch11.MapMode = "FlatFace"
sketch11.AttachmentOffset = App.Placement(V(0, 0, -276.5), App.Rotation())
sketch11.addGeometry([
    Part.LineSegment(V(1333, -152, 0), V(1275, 8, 0)),  # 0
    Part.LineSegment(V(1275, 8, 0), V(1243, 8, 0)),  # 1
    Part.LineSegment(V(1243, 8, 0), V(1305, -162, 0)),  # 2
    Part.LineSegment(V(1305, -162, 0), V(1333, -152, 0)),  # 3
    Part.Circle(V(1309, -129, 0), V(0, 0, 1), 6),  # 4
], False)
sketch11.addConstraint([
    Sketcher.Constraint("Coincident", 0, 2, 1, 1),
    Sketcher.Constraint("Coincident", 1, 2, 2, 1),
    Sketcher.Constraint("Coincident", 2, 2, 3, 1),
    Sketcher.Constraint("Coincident", 3, 2, 0, 1),
    Sketcher.Constraint("Horizontal", 1),
    Sketcher.Constraint("Parallel", 0, 2),
    Sketcher.Constraint("Perpendicular", 2, 3),
    Sketcher.Constraint("Diameter", 4, Q("13 mm")),
    Sketcher.Constraint("Angle", 0, Q("110 deg")),
    Sketcher.Constraint("Distance", 3, Q("30 mm")),
    Sketcher.Constraint("DistanceX", -1, 1, 0, 2, Q("1275 mm")),
    Sketcher.Constraint("DistanceY", 2, 2, 0, 2, Q("170 mm")),
    Sketcher.Constraint("DistanceY", -1, 1, 0, 2, Q("7.5 mm")),
    Sketcher.Constraint("DistanceX", -1, 1, 4, 3, Q("1308.784392 mm")),
    Sketcher.Constraint("DistanceY", 4, 3, -1, 1, Q("129.178919 mm")),
])
pad9 = body3.newObject("PartDesign::Pad", "Pad008")
pad9.Profile = sketch11
pad9.Length = 5
pad9.Reversed = True
doc.recompute()

datumplane = body3.newObject("PartDesign::Plane", "DatumPlane")
datumplane.AttachmentSupport = (doc.getObject("XY_Plane002"), [""])
datumplane.MapMode = "FlatFace"
datumplane.AttachmentOffset = App.Placement(V(0, 0, -300), App.Rotation())
mirrored = body3.newObject("PartDesign::Mirrored", "Mirrored")
mirrored.Originals = [pad9]
mirrored.MirrorPlane = (datumplane, [""])
body3.Tip = mirrored
body5 = doc.addObject("PartDesign::Body", "Body004")

# Sketch on XY plane
sketch12 = body5.newObject("Sketcher::SketchObject", "Sketch011")
sketch12.AttachmentSupport = (doc.getObject("XY_Plane004"), [""])
sketch12.MapMode = "FlatFace"
sketch12.AttachmentOffset = App.Placement(V(0, 0, -20), App.Rotation())
sketch12.addGeometry([
    Part.LineSegment(V(1250, 18, 0), V(1250, 0, 0)),  # 0
    Part.LineSegment(V(1250, 0, 0), V(1150, 0, 0)),  # 1
    Part.LineSegment(V(1150, 0, 0), V(1150, 18, 0)),  # 2
    Part.LineSegment(V(1150, 18, 0), V(1250, 18, 0)),  # 3
    Part.Circle(V(1230, 9, 0), V(0, 0, 1), 5),  # 4
    Part.Circle(V(1170, 9, 0), V(0, 0, 1), 5),  # 5
], False)
sketch12.addConstraint([
    Sketcher.Constraint("Coincident", 0, 2, 1, 1),
    Sketcher.Constraint("Coincident", 1, 2, 2, 1),
    Sketcher.Constraint("Coincident", 2, 2, 3, 1),
    Sketcher.Constraint("Coincident", 3, 2, 0, 1),
    Sketcher.Constraint("Vertical", 0),
    Sketcher.Constraint("Horizontal", 1),
    Sketcher.Constraint("Vertical", 2),
    Sketcher.Constraint("Horizontal", 3),
    Sketcher.Constraint("Equal", 4, 5),
    Sketcher.Constraint("PointOnObject", 0, 2, -1),
    Sketcher.Constraint("Horizontal", 4, 3, 5, 3),
    Sketcher.Constraint("Diameter", 4, Q("10 mm")),
    Sketcher.Constraint("DistanceX", 1, 2, 1, 1, Q("100 mm")),
    Sketcher.Constraint("DistanceY", 0, 2, 0, 1, Q("18 mm")),
    Sketcher.Constraint("DistanceX", -1, 1, 4, 3, Q("1230 mm")),
    Sketcher.Constraint("DistanceY", -1, 1, 4, 3, Q("9 mm")),
    Sketcher.Constraint("DistanceX", -1, 1, 5, 3, Q("1170 mm")),
    Sketcher.Constraint("DistanceX", -1, 1, 0, 2, Q("1250 mm")),
])
pad10 = body5.newObject("PartDesign::Pad", "Pad009")
pad10.Profile = sketch12
pad10.Length = 3
pad10.Reversed = True
body6 = doc.addObject("PartDesign::Body", "Body005")

# Sketch on XY plane
sketch13 = body6.newObject("Sketcher::SketchObject", "Sketch012")
sketch13.AttachmentSupport = (doc.getObject("XY_Plane005"), [""])
sketch13.MapMode = "FlatFace"
sketch13.AttachmentOffset = App.Placement(V(0, 0, -23), App.Rotation())
sketch13.addGeometry([
    Part.Circle(V(1210, -14, 0), V(0, 0, 1), 14),
    Part.Circle(V(1210, -14, 0), V(0, 0, 1), 13),
], False)
sketch13.addConstraint([
    Sketcher.Constraint("Coincident", 1, 3, 0, 3),
    Sketcher.Constraint("Diameter", 0, Q("27 mm")),
    Sketcher.Constraint("Diameter", 1, Q("26 mm")),
    Sketcher.Constraint("DistanceX", -1, 1, 0, 3, Q("1210 mm")),
    Sketcher.Constraint("DistanceY", 0, 3, -1, 1, Q("13.5 mm")),
])
pad11 = body6.newObject("PartDesign::Pad", "Pad010")
pad11.Profile = sketch13
pad11.Type = "TwoLengths"
pad11.Length = 3
pad11.Length2 = 23
pad11.Reversed = True
body7 = doc.addObject("PartDesign::Body", "Body006")
doc.recompute()

mirroring2 = doc.addObject("Part::Mirroring", "Mirroring001")
mirroring2.Source = body5
mirroring2.Base = V(0, 0, -300)
mirroring2.Normal = V(0, 0, 1)
body7.BaseFeature = mirroring2
doc.recompute()
body8 = doc.addObject("PartDesign::Body", "Body007")
doc.recompute()

mirroring3 = doc.addObject("Part::Mirroring", "Mirroring002")
mirroring3.Source = body6
mirroring3.Base = V(0, 0, -300)
mirroring3.Normal = V(0, 0, 1)
body8.BaseFeature = mirroring3
doc.recompute()
body9 = doc.addObject("PartDesign::Body", "Body008")

# Sketch on XY plane
sketch14 = body9.newObject("Sketcher::SketchObject", "Sketch013")
sketch14.AttachmentSupport = (doc.getObject("XY_Plane008"), [""])
sketch14.MapMode = "FlatFace"
sketch14.AttachmentOffset = App.Placement(V(0, 0, -580), App.Rotation())
sketch14.addGeometry(Part.Circle(V(1262, 20, 0), V(0, 0, 1), 12), False)
sketch14.addConstraint([
    Sketcher.Constraint("Diameter", 0, Q("24 mm")),
    Sketcher.Constraint("DistanceX", -1, 1, 0, 3, Q("1262 mm")),
    Sketcher.Constraint("DistanceY", -1, 1, 0, 3, Q("19.5 mm")),
])
pad12 = body9.newObject("PartDesign::Pad", "Pad011")
pad12.Profile = sketch14
pad12.Length = 560
mirroring.Visibility = False
mirroring2.Visibility = False
mirroring3.Visibility = False

doc.recompute()
